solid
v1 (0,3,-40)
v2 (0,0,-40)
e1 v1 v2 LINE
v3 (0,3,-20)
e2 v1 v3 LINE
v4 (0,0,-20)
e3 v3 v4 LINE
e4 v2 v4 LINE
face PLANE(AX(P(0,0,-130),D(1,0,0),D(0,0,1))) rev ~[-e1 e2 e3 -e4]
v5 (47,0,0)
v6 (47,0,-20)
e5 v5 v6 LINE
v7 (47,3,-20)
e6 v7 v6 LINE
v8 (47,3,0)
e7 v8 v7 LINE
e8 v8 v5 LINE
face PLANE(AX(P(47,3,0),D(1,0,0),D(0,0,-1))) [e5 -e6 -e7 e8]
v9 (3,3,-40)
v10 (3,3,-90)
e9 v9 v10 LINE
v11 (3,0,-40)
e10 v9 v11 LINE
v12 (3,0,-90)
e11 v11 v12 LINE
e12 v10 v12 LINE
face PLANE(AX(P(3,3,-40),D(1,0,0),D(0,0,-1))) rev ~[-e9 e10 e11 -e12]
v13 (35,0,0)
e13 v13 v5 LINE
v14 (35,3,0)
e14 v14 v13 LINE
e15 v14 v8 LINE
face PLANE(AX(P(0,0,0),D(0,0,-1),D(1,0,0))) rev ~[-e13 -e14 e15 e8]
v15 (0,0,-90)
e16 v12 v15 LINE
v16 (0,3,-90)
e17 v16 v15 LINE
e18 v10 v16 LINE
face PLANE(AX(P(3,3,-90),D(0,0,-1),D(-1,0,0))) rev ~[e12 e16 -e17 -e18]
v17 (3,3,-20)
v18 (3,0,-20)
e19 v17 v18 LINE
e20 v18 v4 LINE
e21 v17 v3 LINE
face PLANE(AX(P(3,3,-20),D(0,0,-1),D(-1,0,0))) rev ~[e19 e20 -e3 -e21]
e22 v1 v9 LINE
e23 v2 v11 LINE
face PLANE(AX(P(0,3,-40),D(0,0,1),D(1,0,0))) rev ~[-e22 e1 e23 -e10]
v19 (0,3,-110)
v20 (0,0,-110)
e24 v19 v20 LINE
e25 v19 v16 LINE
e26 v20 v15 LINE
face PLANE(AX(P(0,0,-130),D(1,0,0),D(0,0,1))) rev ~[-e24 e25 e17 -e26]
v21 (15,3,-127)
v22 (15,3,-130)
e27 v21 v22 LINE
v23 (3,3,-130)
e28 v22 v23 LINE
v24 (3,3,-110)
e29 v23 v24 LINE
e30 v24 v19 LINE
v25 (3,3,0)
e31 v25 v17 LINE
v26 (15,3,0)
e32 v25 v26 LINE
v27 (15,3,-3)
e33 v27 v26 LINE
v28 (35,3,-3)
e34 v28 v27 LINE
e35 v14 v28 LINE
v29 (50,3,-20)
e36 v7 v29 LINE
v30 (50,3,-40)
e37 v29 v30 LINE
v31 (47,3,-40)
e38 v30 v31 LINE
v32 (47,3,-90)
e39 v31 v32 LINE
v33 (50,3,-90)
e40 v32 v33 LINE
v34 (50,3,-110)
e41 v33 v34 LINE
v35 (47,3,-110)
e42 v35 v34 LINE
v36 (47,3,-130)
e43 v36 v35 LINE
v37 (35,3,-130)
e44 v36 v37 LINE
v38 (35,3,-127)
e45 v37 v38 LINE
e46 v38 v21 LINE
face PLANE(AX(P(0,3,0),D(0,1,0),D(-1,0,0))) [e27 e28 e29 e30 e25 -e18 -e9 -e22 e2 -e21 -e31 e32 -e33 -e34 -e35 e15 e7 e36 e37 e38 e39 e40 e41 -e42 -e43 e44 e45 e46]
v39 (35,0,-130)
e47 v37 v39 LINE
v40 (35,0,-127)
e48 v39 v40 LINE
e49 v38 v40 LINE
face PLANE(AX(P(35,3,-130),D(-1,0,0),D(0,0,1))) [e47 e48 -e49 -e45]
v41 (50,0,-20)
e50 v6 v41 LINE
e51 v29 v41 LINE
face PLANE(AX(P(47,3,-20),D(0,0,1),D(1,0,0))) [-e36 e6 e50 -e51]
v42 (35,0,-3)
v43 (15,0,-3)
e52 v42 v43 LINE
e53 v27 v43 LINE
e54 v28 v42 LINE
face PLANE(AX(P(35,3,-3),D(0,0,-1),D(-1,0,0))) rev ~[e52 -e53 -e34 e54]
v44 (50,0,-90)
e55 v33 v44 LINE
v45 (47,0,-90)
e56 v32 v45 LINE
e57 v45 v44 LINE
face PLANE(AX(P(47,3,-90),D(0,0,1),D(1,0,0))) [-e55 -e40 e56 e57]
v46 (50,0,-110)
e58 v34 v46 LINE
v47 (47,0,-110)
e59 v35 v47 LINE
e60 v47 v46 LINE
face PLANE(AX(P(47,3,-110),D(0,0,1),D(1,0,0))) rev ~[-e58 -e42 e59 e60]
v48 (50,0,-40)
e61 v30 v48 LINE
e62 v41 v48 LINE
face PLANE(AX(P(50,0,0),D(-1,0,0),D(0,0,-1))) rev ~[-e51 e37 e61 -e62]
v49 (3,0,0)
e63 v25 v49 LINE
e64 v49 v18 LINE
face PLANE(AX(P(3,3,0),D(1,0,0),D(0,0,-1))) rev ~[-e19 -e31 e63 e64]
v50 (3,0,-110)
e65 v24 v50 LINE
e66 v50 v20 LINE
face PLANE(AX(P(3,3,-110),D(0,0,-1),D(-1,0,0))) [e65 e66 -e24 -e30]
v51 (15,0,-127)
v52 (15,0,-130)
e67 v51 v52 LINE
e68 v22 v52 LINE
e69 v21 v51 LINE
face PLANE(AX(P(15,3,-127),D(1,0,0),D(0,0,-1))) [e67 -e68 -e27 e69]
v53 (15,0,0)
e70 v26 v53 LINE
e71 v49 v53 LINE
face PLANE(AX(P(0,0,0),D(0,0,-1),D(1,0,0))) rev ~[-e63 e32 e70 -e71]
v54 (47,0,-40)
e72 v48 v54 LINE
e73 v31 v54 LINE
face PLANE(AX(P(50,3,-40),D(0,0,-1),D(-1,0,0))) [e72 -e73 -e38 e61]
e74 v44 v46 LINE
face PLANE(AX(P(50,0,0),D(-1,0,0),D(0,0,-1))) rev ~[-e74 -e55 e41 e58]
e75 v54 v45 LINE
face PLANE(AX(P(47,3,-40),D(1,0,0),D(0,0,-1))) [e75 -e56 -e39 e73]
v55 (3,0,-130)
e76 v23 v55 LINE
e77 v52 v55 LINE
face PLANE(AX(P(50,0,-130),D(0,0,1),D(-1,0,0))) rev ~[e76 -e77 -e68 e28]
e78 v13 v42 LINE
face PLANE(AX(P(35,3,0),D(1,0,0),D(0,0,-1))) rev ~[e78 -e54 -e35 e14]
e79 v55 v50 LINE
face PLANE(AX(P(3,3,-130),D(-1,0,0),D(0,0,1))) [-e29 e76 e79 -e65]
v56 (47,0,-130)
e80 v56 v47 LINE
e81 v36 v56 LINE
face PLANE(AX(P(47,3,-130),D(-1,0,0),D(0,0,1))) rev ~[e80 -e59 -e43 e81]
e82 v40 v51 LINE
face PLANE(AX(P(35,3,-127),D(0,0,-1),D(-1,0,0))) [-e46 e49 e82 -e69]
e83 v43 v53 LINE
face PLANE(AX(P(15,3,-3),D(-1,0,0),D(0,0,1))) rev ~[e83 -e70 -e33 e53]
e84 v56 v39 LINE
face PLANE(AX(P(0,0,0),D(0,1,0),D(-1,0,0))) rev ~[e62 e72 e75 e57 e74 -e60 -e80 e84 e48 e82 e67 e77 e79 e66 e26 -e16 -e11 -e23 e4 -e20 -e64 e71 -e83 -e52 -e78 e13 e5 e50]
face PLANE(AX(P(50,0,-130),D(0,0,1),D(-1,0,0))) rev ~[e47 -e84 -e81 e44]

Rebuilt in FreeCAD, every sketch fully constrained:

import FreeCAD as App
import Part
import Sketcher

doc = App.newDocument("Part")
body = doc.addObject("PartDesign::Body", "Body")

# Sketch on XZ plane
sketch1 = body.newObject("Sketcher::SketchObject", "Sketch")
sketch1.AttachmentSupport = (doc.getObject("XZ_Plane"), [""])
sketch1.MapMode = "FlatFace"
sketch1.addGeometry(Part.LineSegment(App.Vector(0, -130, 0), App.Vector(0, 0, 0)), False)
sketch1.addGeometry(Part.LineSegment(App.Vector(0, 0, 0), App.Vector(50, 0, 0)), False)
sketch1.addGeometry(Part.LineSegment(App.Vector(50, 0, 0), App.Vector(50, -130, 0)), False)
sketch1.addGeometry(Part.LineSegment(App.Vector(50, -130, 0), App.Vector(0, -130, 0)), False)
sketch1.addConstraint(Sketcher.Constraint("Coincident", 0, 2, 1, 1))
sketch1.addConstraint(Sketcher.Constraint("Coincident", 1, 2, 2, 1))
sketch1.addConstraint(Sketcher.Constraint("Coincident", 2, 2, 3, 1))
sketch1.addConstraint(Sketcher.Constraint("Coincident", 3, 2, 0, 1))
sketch1.addConstraint(Sketcher.Constraint("Vertical", 0))
sketch1.addConstraint(Sketcher.Constraint("Horizontal", 1))
sketch1.addConstraint(Sketcher.Constraint("Vertical", 2))
sketch1.addConstraint(Sketcher.Constraint("Horizontal", 3))
sketch1.addConstraint(Sketcher.Constraint("Coincident", 0, 2, -1, 1))
sketch1.addConstraint(Sketcher.Constraint("DistanceX", 1, 1, 1, 2, 50.0))
sketch1.addConstraint(Sketcher.Constraint("DistanceY", 0, 1, 0, 2, 130.0))
pad1 = body.newObject("PartDesign::Pad", "Pad")
pad1.Profile = sketch1
pad1.Length = 3
pad1.Reversed = True

# Sketch on XZ plane
sketch2 = body.newObject("Sketcher::SketchObject", "Sketch001")
sketch2.AttachmentSupport = (doc.getObject("XZ_Plane"), [""])
sketch2.MapMode = "FlatFace"
sketch2.AttachmentOffset = App.Placement(App.Vector(0, 0, -3), App.Rotation())
sketch2.addGeometry(Part.LineSegment(App.Vector(0, -20, 0), App.Vector(0, 0, 0)), False)
sketch2.addGeometry(Part.LineSegment(App.Vector(0, 0, 0), App.Vector(3, 0, 0)), False)
sketch2.addGeometry(Part.LineSegment(App.Vector(3, 0, 0), App.Vector(3, -20, 0)), False)
sketch2.addGeometry(Part.LineSegment(App.Vector(3, -20, 0), App.Vector(0, -20, 0)), False)
sketch2.addGeometry(Part.LineSegment(App.Vector(15, -3, 0), App.Vector(15, 0, 0)), False)
sketch2.addGeometry(Part.LineSegment(App.Vector(15, 0, 0), App.Vector(35, 0, 0)), False)
sketch2.addGeometry(Part.LineSegment(App.Vector(35, 0, 0), App.Vector(35, -3, 0)), False)
sketch2.addGeometry(Part.LineSegment(App.Vector(35, -3, 0), App.Vector(15, -3, 0)), False)
sketch2.addGeometry(Part.LineSegment(App.Vector(0, -90, 0), App.Vector(0, -40, 0)), False)
sketch2.addGeometry(Part.LineSegment(App.Vector(0, -40, 0), App.Vector(3, -40, 0)), False)
sketch2.addGeometry(Part.LineSegment(App.Vector(3, -40, 0), App.Vector(3, -90, 0)), False)
sketch2.addGeometry(Part.LineSegment(App.Vector(3, -90, 0), App.Vector(0, -90, 0)), False)
sketch2.addGeometry(Part.LineSegment(App.Vector(47, -20, 0), App.Vector(47, 0, 0)), False)
sketch2.addGeometry(Part.LineSegment(App.Vector(47, 0, 0), App.Vector(50, 0, 0)), False)
sketch2.addGeometry(Part.LineSegment(App.Vector(50, 0, 0), App.Vector(50, -20, 0)), False)
sketch2.addGeometry(Part.LineSegment(App.Vector(50, -20, 0), App.Vector(47, -20, 0)), False)
sketch2.addGeometry(Part.LineSegment(App.Vector(0, -130, 0), App.Vector(0, -110, 0)), False)
sketch2.addGeometry(Part.LineSegment(App.Vector(0, -110, 0), App.Vector(3, -110, 0)), False)
sketch2.addGeometry(Part.LineSegment(App.Vector(3, -110, 0), App.Vector(3, -130, 0)), False)
sketch2.addGeometry(Part.LineSegment(App.Vector(3, -130, 0), App.Vector(0, -130, 0)), False)
sketch2.addGeometry(Part.LineSegment(App.Vector(47, -40, 0), App.Vector(50, -40, 0)), False)
sketch2.addGeometry(Part.LineSegment(App.Vector(50, -40, 0), App.Vector(50, -90, 0)), False)
sketch2.addGeometry(Part.LineSegment(App.Vector(50, -90, 0), App.Vector(47, -90, 0)), False)
sketch2.addGeometry(Part.LineSegment(App.Vector(47, -90, 0), App.Vector(47, -40, 0)), False)
sketch2.addGeometry(Part.LineSegment(App.Vector(35, -130, 0), App.Vector(15, -130, 0)), False)
sketch2.addGeometry(Part.LineSegment(App.Vector(15, -130, 0), App.Vector(15, -127, 0)), False)
sketch2.addGeometry(Part.LineSegment(App.Vector(15, -127, 0), App.Vector(35, -127, 0)), False)
sketch2.addGeometry(Part.LineSegment(App.Vector(35, -127, 0), App.Vector(35, -130, 0)), False)
sketch2.addGeometry(Part.LineSegment(App.Vector(47, -110, 0), App.Vector(50, -110, 0)), False)
sketch2.addGeometry(Part.LineSegment(App.Vector(50, -110, 0), App.Vector(50, -130, 0)), False)
sketch2.addGeometry(Part.LineSegment(App.Vector(50, -130, 0), App.Vector(47, -130, 0)), False)
sketch2.addGeometry(Part.LineSegment(App.Vector(47, -130, 0), App.Vector(47, -110, 0)), False)
sketch2.addConstraint(Sketcher.Constraint("Coincident", 0, 2, 1, 1))
sketch2.addConstraint(Sketcher.Constraint("Coincident", 1, 2, 2, 1))
sketch2.addConstraint(Sketcher.Constraint("Coincident", 2, 2, 3, 1))
sketch2.addConstraint(Sketcher.Constraint("Coincident", 3, 2, 0, 1))
sketch2.addConstraint(Sketcher.Constraint("Coincident", 4, 2, 5, 1))
sketch2.addConstraint(Sketcher.Constraint("Coincident", 5, 2, 6, 1))
sketch2.addConstraint(Sketcher.Constraint("Coincident", 6, 2, 7, 1))
sketch2.addConstraint(Sketcher.Constraint("Coincident", 7, 2, 4, 1))
sketch2.addConstraint(Sketcher.Constraint("Coincident", 8, 2, 9, 1))
sketch2.addConstraint(Sketcher.Constraint("Coincident", 9, 2, 10, 1))
sketch2.addConstraint(Sketcher.Constraint("Coincident", 10, 2, 11, 1))
sketch2.addConstraint(Sketcher.Constraint("Coincident", 11, 2, 8, 1))
sketch2.addConstraint(Sketcher.Constraint("Coincident", 12, 2, 13, 1))
sketch2.addConstraint(Sketcher.Constraint("Coincident", 13, 2, 14, 1))
sketch2.addConstraint(Sketcher.Constraint("Coincident", 14, 2, 15, 1))
sketch2.addConstraint(Sketcher.Constraint("Coincident", 15, 2, 12, 1))
sketch2.addConstraint(Sketcher.Constraint("Coincident", 16, 2, 17, 1))
sketch2.addConstraint(Sketcher.Constraint("Coincident", 17, 2, 18, 1))
sketch2.addConstraint(Sketcher.Constraint("Coincident", 18, 2, 19, 1))
sketch2.addConstraint(Sketcher.Constraint("Coincident", 19, 2, 16, 1))
sketch2.addConstraint(Sketcher.Constraint("Coincident", 20, 2, 21, 1))
sketch2.addConstraint(Sketcher.Constraint("Coincident", 21, 2, 22, 1))
sketch2.addConstraint(Sketcher.Constraint("Coincident", 22, 2, 23, 1))
sketch2.addConstraint(Sketcher.Constraint("Coincident", 23, 2, 20, 1))
sketch2.addConstraint(Sketcher.Constraint("Coincident", 24, 2, 25, 1))
sketch2.addConstraint(Sketcher.Constraint("Coincident", 25, 2, 26, 1))
sketch2.addConstraint(Sketcher.Constraint("Coincident", 26, 2, 27, 1))
sketch2.addConstraint(Sketcher.Constraint("Coincident", 27, 2, 24, 1))
sketch2.addConstraint(Sketcher.Constraint("Coincident", 28, 2, 29, 1))
sketch2.addConstraint(Sketcher.Constraint("Coincident", 29, 2, 30, 1))
sketch2.addConstraint(Sketcher.Constraint("Coincident", 30, 2, 31, 1))
sketch2.addConstraint(Sketcher.Constraint("Coincident", 31, 2, 28, 1))
sketch2.addConstraint(Sketcher.Constraint("Vertical", 0))
sketch2.addConstraint(Sketcher.Constraint("Horizontal", 1))
sketch2.addConstraint(Sketcher.Constraint("Vertical", 2))
sketch2.addConstraint(Sketcher.Constraint("Horizontal", 3))
sketch2.addConstraint(Sketcher.Constraint("Vertical", 4))
sketch2.addConstraint(Sketcher.Constraint("Horizontal", 5))
sketch2.addConstraint(Sketcher.Constraint("Vertical", 6))
sketch2.addConstraint(Sketcher.Constraint("Horizontal", 7))
sketch2.addConstraint(Sketcher.Constraint("Vertical", 8))
sketch2.addConstraint(Sketcher.Constraint("Horizontal", 9))
sketch2.addConstraint(Sketcher.Constraint("Vertical", 10))
sketch2.addConstraint(Sketcher.Constraint("Horizontal", 11))
sketch2.addConstraint(Sketcher.Constraint("Vertical", 12))
sketch2.addConstraint(Sketcher.Constraint("Horizontal", 13))
sketch2.addConstraint(Sketcher.Constraint("Vertical", 14))
sketch2.addConstraint(Sketcher.Constraint("Horizontal", 15))
sketch2.addConstraint(Sketcher.Constraint("Vertical", 16))
sketch2.addConstraint(Sketcher.Constraint("Horizontal", 17))
sketch2.addConstraint(Sketcher.Constraint("Vertical", 18))
sketch2.addConstraint(Sketcher.Constraint("Horizontal", 19))
sketch2.addConstraint(Sketcher.Constraint("Horizontal", 20))
sketch2.addConstraint(Sketcher.Constraint("Vertical", 21))
sketch2.addConstraint(Sketcher.Constraint("Horizontal", 22))
sketch2.addConstraint(Sketcher.Constraint("Vertical", 23))
sketch2.addConstraint(Sketcher.Constraint("Horizontal", 24))
sketch2.addConstraint(Sketcher.Constraint("Vertical", 25))
sketch2.addConstraint(Sketcher.Constraint("Horizontal", 26))
sketch2.addConstraint(Sketcher.Constraint("Vertical", 27))
sketch2.addConstraint(Sketcher.Constraint("Horizontal", 28))
sketch2.addConstraint(Sketcher.Constraint("Vertical", 29))
sketch2.addConstraint(Sketcher.Constraint("Horizontal", 30))
sketch2.addConstraint(Sketcher.Constraint("Vertical", 31))
sketch2.addConstraint(Sketcher.Constraint("Coincident", 0, 2, -1, 1))
sketch2.addConstraint(Sketcher.Constraint("PointOnObject", 4, 2, -1))
sketch2.addConstraint(Sketcher.Constraint("PointOnObject", 8, 2, -2))
sketch2.addConstraint(Sketcher.Constraint("PointOnObject", 12, 2, -1))
sketch2.addConstraint(Sketcher.Constraint("PointOnObject", 16, 2, -2))
sketch2.addConstraint(Sketcher.Constraint("Horizontal", 3, 2, 14, 2))
sketch2.addConstraint(Sketcher.Constraint("Horizontal", 9, 2, 20, 2))
sketch2.addConstraint(Sketcher.Constraint("Horizontal", 11, 2, 21, 2))
sketch2.addConstraint(Sketcher.Constraint("Horizontal", 19, 2, 24, 2))
sketch2.addConstraint(Sketcher.Constraint("Horizontal", 17, 2, 28, 2))
sketch2.addConstraint(Sketcher.Constraint("Horizontal", 27, 2, 29, 2))
sketch2.addConstraint(Sketcher.Constraint("Vertical", 2, 2, 9, 2))
sketch2.addConstraint(Sketcher.Constraint("Vertical", 10, 2, 17, 2))
sketch2.addConstraint(Sketcher.Constraint("Vertical", 14, 2, 20, 2))
sketch2.addConstraint(Sketcher.Constraint("Vertical", 15, 2, 22, 2))
sketch2.addConstraint(Sketcher.Constraint("Vertical", 7, 2, 24, 2))
sketch2.addConstraint(Sketcher.Constraint("Vertical", 6, 2, 26, 2))
sketch2.addConstraint(Sketcher.Constraint("Vertical", 21, 2, 28, 2))
sketch2.addConstraint(Sketcher.Constraint("Vertical", 23, 2, 30, 2))
sketch2.addConstraint(Sketcher.Constraint("Equal", 11, 13))
sketch2.addConstraint(Sketcher.Constraint("Equal", 26, 0))
sketch2.addConstraint(Sketcher.Constraint("Equal", 30, 4))
sketch2.addConstraint(Sketcher.Constraint("Equal", 14, 16))
sketch2.addConstraint(Sketcher.Constraint("Equal", 6, 25))
sketch2.addConstraint(Sketcher.Constraint("DistanceX", 1, 1, 1, 2, 3.0))
sketch2.addConstraint(Sketcher.Constraint("DistanceX", 5, 1, 5, 2, 20.0))
sketch2.addConstraint(Sketcher.Constraint("DistanceY", 8, 1, 8, 2, 50.0))
sketch2.addConstraint(Sketcher.Constraint("DistanceX", -1, 1, 13, 2, 50.0))
sketch2.addConstraint(Sketcher.Constraint("DistanceY", 8, 2, 3, 2, 20.0))
sketch2.addConstraint(Sketcher.Constraint("DistanceY", 16, 2, 11, 2, 20.0))
sketch2.addConstraint(Sketcher.Constraint("DistanceX", -1, 1, 4, 2, 15.0))
pocket1 = body.newObject("PartDesign::Pocket", "Pocket")
pocket1.Profile = sketch2
pocket1.Type = "ThroughAll"
pocket1.Reversed = True

doc.recompute()
